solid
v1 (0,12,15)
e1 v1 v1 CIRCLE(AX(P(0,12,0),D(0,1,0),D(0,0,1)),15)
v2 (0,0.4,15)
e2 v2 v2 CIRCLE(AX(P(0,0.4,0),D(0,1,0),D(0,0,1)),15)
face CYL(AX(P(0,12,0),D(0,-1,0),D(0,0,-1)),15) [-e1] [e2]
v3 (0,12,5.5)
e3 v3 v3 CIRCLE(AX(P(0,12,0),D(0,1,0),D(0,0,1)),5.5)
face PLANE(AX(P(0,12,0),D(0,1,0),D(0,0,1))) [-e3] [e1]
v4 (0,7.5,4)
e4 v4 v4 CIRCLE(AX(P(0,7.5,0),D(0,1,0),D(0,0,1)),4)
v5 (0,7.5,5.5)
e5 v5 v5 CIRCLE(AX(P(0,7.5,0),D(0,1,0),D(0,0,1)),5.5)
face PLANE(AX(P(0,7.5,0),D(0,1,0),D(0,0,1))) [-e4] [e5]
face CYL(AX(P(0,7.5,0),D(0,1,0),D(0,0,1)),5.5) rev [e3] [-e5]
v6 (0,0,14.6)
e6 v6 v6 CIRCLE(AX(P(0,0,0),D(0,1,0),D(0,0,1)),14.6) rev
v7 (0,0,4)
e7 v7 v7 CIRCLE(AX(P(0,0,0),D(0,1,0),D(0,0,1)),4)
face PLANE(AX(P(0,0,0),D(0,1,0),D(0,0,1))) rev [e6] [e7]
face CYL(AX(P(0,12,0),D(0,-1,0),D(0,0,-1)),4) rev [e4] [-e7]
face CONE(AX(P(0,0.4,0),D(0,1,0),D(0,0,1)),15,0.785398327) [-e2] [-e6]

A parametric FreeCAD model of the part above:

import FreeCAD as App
import Part
import Sketcher


def edges_at(feature, points):
    """Names of the edges that pass closest to the given points."""
    edges = feature.Shape.Edges
    near = lambda p: min(range(len(edges)), key=lambda i: edges[i].distToShape(Part.Vertex(*p))[0])
    return sorted({f"Edge{near(p) + 1}" for p in points})

doc = App.newDocument("Part")
body = doc.addObject("PartDesign::Body", "Body")

sketch1 = body.newObject("Sketcher::SketchObject", "Sketch")
sketch1.AttachmentSupport = (doc.getObject("XZ_Plane"), [""])
sketch1.MapMode = "FlatFace"
sketch1.addGeometry([
    Part.Circle(App.Vector(0, 0, 0), App.Vector(0, 0, 1), 15),
    Part.Circle(App.Vector(0, 0, 0), App.Vector(0, 0, 1), 4),
], False)
sketch1.addConstraint([
    Sketcher.Constraint("Coincident", 0, 3, -1, 1),
    Sketcher.Constraint("Coincident", 1, 3, -1, 1),
    Sketcher.Constraint("Diameter", 0, 30.0),
    Sketcher.Constraint("Diameter", 1, 8.0),
])
pad1 = body.newObject("PartDesign::Pad", "Pad")
pad1.Profile = sketch1
pad1.Length = 12
pad1.Reversed = True

sketch2 = body.newObject("Sketcher::SketchObject", "Sketch001")
sketch2.AttachmentSupport = (doc.getObject("XZ_Plane"), [""])
sketch2.MapMode = "FlatFace"
sketch2.AttachmentOffset = App.Placement(App.Vector(0, 0, -12), App.Rotation())
sketch2.addGeometry(Part.Circle(App.Vector(0, 0, 0), App.Vector(0, 0, 1), 5.5), False)
sketch2.addConstraint([
    Sketcher.Constraint("Coincident", 0, 3, -1, 1),
    Sketcher.Constraint("Diameter", 0, 11.0),
])
pocket1 = body.newObject("PartDesign::Pocket", "Pocket")
pocket1.Profile = sketch2
pocket1.Length = 9
pocket1.Midplane = True
doc.recompute()

chamfer = body.newObject("PartDesign::Chamfer", "Chamfer")
chamfer.Base = (pocket1, edges_at(pocket1, [(0, 0, -15)]))
chamfer.ChamferType = "Two distances"
chamfer.Size = 0.4
chamfer.Size2 = 0.4

doc.recompute()
